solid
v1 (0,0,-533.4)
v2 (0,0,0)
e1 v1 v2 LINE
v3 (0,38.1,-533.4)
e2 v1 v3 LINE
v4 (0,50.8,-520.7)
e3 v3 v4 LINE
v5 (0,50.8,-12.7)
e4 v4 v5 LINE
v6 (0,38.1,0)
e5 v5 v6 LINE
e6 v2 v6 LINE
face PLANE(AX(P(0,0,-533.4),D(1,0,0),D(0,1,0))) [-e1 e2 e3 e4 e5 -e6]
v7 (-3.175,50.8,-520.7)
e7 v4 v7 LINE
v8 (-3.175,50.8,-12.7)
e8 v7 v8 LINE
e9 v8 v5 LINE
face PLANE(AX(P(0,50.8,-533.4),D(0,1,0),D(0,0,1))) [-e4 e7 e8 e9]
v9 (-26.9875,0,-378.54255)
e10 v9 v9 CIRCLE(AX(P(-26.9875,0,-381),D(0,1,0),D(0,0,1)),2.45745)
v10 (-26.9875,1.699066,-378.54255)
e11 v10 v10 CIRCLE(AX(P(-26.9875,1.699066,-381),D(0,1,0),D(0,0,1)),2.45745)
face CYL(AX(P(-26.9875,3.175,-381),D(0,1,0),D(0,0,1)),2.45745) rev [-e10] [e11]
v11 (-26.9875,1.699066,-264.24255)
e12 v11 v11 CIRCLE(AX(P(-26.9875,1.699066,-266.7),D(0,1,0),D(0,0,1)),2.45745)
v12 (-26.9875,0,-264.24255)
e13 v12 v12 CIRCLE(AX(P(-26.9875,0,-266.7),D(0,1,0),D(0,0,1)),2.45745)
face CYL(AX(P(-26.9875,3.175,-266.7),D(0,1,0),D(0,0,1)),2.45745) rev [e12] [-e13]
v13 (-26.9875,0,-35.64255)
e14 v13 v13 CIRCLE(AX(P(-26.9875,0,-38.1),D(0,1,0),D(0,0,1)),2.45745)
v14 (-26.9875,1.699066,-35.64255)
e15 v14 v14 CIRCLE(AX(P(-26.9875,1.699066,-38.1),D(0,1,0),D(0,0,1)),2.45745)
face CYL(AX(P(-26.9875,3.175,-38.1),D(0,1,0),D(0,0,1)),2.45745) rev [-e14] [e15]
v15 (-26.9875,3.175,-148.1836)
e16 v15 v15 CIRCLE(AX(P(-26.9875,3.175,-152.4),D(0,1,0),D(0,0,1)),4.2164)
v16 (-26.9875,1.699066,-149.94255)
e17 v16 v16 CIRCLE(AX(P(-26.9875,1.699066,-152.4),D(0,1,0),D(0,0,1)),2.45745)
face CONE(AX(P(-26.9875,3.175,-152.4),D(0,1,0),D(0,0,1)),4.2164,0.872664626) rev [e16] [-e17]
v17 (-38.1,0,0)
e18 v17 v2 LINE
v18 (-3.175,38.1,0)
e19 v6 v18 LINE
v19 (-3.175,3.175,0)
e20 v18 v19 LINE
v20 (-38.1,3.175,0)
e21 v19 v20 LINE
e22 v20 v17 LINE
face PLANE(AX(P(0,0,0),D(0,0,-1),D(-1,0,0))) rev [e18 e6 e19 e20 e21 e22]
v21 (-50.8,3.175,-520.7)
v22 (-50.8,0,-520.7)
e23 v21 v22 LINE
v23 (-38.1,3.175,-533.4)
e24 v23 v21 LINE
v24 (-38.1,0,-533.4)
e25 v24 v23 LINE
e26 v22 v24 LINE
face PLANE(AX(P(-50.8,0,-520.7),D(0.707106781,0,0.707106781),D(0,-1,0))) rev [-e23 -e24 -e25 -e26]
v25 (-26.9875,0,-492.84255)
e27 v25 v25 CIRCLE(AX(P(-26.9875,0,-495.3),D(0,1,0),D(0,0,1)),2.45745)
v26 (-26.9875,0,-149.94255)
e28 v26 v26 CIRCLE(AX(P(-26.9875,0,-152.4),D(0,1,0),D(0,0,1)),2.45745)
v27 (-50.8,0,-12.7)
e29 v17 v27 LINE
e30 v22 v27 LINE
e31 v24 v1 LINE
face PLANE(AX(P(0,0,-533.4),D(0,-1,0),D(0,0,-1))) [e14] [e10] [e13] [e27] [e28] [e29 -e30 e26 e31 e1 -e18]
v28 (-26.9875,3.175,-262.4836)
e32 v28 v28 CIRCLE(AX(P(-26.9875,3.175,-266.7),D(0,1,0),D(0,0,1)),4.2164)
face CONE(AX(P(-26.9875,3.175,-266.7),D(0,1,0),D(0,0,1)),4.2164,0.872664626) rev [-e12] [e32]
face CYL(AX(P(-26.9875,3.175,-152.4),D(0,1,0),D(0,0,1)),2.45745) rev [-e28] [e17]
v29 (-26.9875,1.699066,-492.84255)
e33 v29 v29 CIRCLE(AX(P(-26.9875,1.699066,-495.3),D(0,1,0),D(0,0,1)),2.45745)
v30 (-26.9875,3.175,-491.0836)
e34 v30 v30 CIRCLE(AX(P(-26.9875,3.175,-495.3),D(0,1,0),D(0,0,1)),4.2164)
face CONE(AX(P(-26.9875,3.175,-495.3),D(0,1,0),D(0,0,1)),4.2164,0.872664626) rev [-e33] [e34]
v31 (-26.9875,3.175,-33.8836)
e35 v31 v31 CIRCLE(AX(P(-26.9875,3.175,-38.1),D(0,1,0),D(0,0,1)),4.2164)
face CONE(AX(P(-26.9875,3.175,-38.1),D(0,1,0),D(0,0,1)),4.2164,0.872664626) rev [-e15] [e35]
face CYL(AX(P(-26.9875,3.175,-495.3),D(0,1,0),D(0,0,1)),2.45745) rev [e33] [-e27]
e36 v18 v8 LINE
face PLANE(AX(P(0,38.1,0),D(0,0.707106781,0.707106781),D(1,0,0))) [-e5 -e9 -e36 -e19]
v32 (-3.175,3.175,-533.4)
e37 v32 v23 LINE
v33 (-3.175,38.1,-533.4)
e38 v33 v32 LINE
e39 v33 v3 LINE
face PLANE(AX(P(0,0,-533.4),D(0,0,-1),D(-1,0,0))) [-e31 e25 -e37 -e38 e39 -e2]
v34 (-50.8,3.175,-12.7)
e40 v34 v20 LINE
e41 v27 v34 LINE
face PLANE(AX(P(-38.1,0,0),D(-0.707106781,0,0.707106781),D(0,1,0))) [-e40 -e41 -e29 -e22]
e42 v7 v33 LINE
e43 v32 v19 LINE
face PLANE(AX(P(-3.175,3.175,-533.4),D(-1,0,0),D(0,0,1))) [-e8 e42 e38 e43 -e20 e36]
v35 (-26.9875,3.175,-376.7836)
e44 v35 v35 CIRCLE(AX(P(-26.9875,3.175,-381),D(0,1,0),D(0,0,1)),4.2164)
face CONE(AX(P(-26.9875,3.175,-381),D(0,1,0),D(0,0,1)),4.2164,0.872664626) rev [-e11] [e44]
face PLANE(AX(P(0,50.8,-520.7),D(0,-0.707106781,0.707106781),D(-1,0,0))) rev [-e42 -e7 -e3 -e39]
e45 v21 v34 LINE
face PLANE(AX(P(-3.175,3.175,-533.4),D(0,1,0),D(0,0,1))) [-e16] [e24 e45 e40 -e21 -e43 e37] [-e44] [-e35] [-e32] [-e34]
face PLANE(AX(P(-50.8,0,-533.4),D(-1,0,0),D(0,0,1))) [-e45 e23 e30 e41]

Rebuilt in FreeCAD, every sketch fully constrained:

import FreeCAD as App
import Part
import Sketcher
from FreeCAD import Vector
Q = App.Units.Quantity


def edges_at(feature, points):
    """Names of the edges that pass closest to the given points."""
    edges = feature.Shape.Edges
    near = lambda p: min(range(len(edges)), key=lambda i: edges[i].distToShape(Part.Vertex(*p))[0])
    return sorted({f"Edge{near(p) + 1}" for p in points})

doc = App.newDocument("Part")
body = doc.addObject("PartDesign::Body", "Body")

sketch1 = body.newObject("Sketcher::SketchObject", "Sketch")
sketch1.AttachmentSupport = (doc.getObject("XY_Plane"), [""])
sketch1.MapMode = "FlatFace"
sketch1.addGeometry([
    Part.LineSegment(Vector(0, 0, 0), Vector(0, 50.8, 0)),
    Part.LineSegment(Vector(0, 50.8, 0), Vector(-3.175, 50.8, 0)),
    Part.LineSegment(Vector(-3.175, 50.8, 0), Vector(-3.175, 3.175, 0)),
    Part.LineSegment(Vector(-3.175, 3.175, 0), Vector(-50.8, 3.175, 0)),
    Part.LineSegment(Vector(-50.8, 3.175, 0), Vector(-50.8, 0, 0)),
    Part.LineSegment(Vector(-50.8, 0, 0), Vector(0, 0, 0)),
], False)
sketch1.addConstraint([
    Sketcher.Constraint("Coincident", 0, 2, 1, 1),
    Sketcher.Constraint("Coincident", 1, 2, 2, 1),
    Sketcher.Constraint("Coincident", 2, 2, 3, 1),
    Sketcher.Constraint("Coincident", 3, 2, 4, 1),
    Sketcher.Constraint("Coincident", 4, 2, 5, 1),
    Sketcher.Constraint("Coincident", 5, 2, 0, 1),
    Sketcher.Constraint("Vertical", 0),
    Sketcher.Constraint("Horizontal", 1),
    Sketcher.Constraint("Vertical", 2),
    Sketcher.Constraint("Horizontal", 3),
    Sketcher.Constraint("Vertical", 4),
    Sketcher.Constraint("Horizontal", 5),
    Sketcher.Constraint("Coincident", 5, 2, -1, 1),
    Sketcher.Constraint("Equal", 5, 0),
    Sketcher.Constraint("Equal", 3, 2),
    Sketcher.Constraint("DistanceX", 5, 1, 5, 2, Q("2 in")),
    Sketcher.Constraint("DistanceX", 1, 2, 1, 1, Q("0.125 in")),
])
pad1 = body.newObject("PartDesign::Pad", "Pad")
pad1.Profile = sketch1
pad1.Length = Q("21 in")
pad1.Reversed = True
doc.recompute()

chamfer = body.newObject("PartDesign::Chamfer", "Chamfer")
chamfer.Base = (pad1, edges_at(pad1, [
    (-1.587, 50.8, -533.4),
    (-50.8, 1.587, -533.4),
    (-50.8, 1.587, 0),
    (-1.587, 50.8, 0),
]))
chamfer.Size = Q("0.5 in")

sketch2 = body.newObject("Sketcher::SketchObject", "Sketch001")
sketch2.AttachmentSupport = (doc.getObject("YZ_Plane"), [""])
sketch2.MapMode = "FlatFace"
sketch2.AttachmentOffset = App.Placement(Vector(0, 0, -1.0625 * 25.4), App.Rotation())
sketch2.addGeometry([
    Part.LineSegment(Vector(0, -495.3, 0), Vector(3.175, -495.3, 0)),
    Part.LineSegment(Vector(3.175, -495.3, 0), Vector(3.175, -491.0836, 0)),
    Part.LineSegment(Vector(3.175, -491.0836, 0), Vector(1.699066, -492.84255, 0)),
    Part.LineSegment(Vector(1.699066, -492.84255, 0), Vector(0, -492.84255, 0)),
    Part.LineSegment(Vector(0, -492.84255, 0), Vector(0, -495.3, 0)),
], False)
sketch2.addGeometry(Part.LineSegment(Vector(3.175, -495.3, 0), Vector(0, -495.3, 0)), True)
sketch2.addConstraint([
    Sketcher.Constraint("Coincident", 0, 2, 1, 1),
    Sketcher.Constraint("Coincident", 1, 2, 2, 1),
    Sketcher.Constraint("Coincident", 2, 2, 3, 1),
    Sketcher.Constraint("Coincident", 3, 2, 4, 1),
    Sketcher.Constraint("Coincident", 4, 2, 0, 1),
    Sketcher.Constraint("Horizontal", 0),
    Sketcher.Constraint("Vertical", 1),
    Sketcher.Constraint("Horizontal", 3),
    Sketcher.Constraint("Vertical", 4),
    Sketcher.Constraint("Horizontal", 5),
    Sketcher.Constraint("Coincident", 5, 1, 0, 2),
    Sketcher.Constraint("PointOnObject", 3, 2, -2),
    Sketcher.Constraint("PointOnObject", 5, 2, -2),
    Sketcher.Constraint("Angle", 2, Q("-130 deg")),
    Sketcher.Constraint("DistanceY", 0, 2, -1, 1, Q("19.5 in")),
    Sketcher.Constraint("DistanceX", 0, 1, 0, 2, Q("0.125 in")),
    Sketcher.Constraint("DistanceY", 1, 1, 1, 2, Q("0.166 in")),
    Sketcher.Constraint("DistanceY", 4, 2, 4, 1, 2.45745),
])
groove = body.newObject("PartDesign::Groove", "Groove")
groove.Profile = sketch2
groove.ReferenceAxis = (sketch2, ["Axis0"])
groove.Angle = 360
doc.recompute()

linearpattern = body.newObject("PartDesign::LinearPattern", "LinearPattern")
linearpattern.Originals = [groove]
linearpattern.Direction = (doc.getObject("Z_Axis"), [""])
linearpattern.Mode = "offset"
linearpattern.Offset = Q("18 in")
linearpattern.Occurrences = 2
body.Tip = linearpattern
doc.recompute()

linearpattern2 = body.newObject("PartDesign::LinearPattern", "LinearPattern001")
linearpattern2.Originals = [groove]
linearpattern2.Direction = (doc.getObject("Z_Axis"), [""])
linearpattern2.Mode = "offset"
linearpattern2.Offset = Q("13.5 in")
linearpattern2.Occurrences = 2
body.Tip = linearpattern2
doc.recompute()

linearpattern3 = body.newObject("PartDesign::LinearPattern", "LinearPattern002")
linearpattern3.Originals = [groove]
linearpattern3.Direction = (doc.getObject("Z_Axis"), [""])
linearpattern3.Mode = "offset"
linearpattern3.Offset = Q("9 in")
linearpattern3.Occurrences = 2
body.Tip = linearpattern3
doc.recompute()

linearpattern4 = body.newObject("PartDesign::LinearPattern", "LinearPattern003")
linearpattern4.Originals = [groove]
linearpattern4.Direction = (doc.getObject("Z_Axis"), [""])
linearpattern4.Mode = "offset"
linearpattern4.Offset = Q("4.5 in")
linearpattern4.Occurrences = 2
body.Tip = linearpattern4

doc.recompute()
